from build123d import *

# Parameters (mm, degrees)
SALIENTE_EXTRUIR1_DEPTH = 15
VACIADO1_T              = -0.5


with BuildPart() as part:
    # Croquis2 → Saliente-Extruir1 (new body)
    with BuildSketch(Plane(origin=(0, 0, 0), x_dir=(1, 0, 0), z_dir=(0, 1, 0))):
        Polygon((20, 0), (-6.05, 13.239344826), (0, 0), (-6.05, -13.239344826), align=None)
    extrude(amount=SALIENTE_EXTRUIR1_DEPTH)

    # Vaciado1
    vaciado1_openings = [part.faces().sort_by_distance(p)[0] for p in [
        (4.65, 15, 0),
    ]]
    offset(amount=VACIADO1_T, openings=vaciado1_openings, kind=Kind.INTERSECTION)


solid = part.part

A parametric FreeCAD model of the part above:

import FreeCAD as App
import Part
import Sketcher

V = App.Vector


def faces_at(feature, points):
    """Names of the faces that lie closest to the given points."""
    faces = feature.Shape.Faces
    near = lambda p: min(range(len(faces)), key=lambda i: faces[i].distToShape(Part.Vertex(*p))[0])
    return sorted({f"Face{near(p) + 1}" for p in points})

doc = App.newDocument("Part")
params = doc.addObject("Spreadsheet::Sheet", "Params")
for row, (alias, value) in enumerate([
    ("pad1_length", "15 mm"),
    ("thickness_wall", "0.5 mm"),
], start=1):
    params.set(f"A{row}", alias)
    params.set(f"B{row}", "=" + value)
    params.setAlias(f"B{row}", alias)

body = doc.addObject("PartDesign::Body", "Body")

sketch1 = body.newObject("Sketcher::SketchObject", "Sketch")
sketch1.AttachmentSupport = (doc.getObject("XZ_Plane"), [""])
sketch1.MapMode = "FlatFace"
sketch1.addGeometry([
    Part.LineSegment(V(20, 0, 0), V(-6.05, -13.239345, 0)),
    Part.LineSegment(V(-6.05, -13.239345, 0), V(0, 0, 0)),
    Part.LineSegment(V(0, 0, 0), V(-6.05, 13.239345, 0)),
    Part.LineSegment(V(-6.05, 13.239345, 0), V(20, 0, 0)),
], False)
sketch1.addConstraint([
    Sketcher.Constraint("Coincident", 0, 2, 1, 1),
    Sketcher.Constraint("Coincident", 1, 2, 2, 1),
    Sketcher.Constraint("Coincident", 2, 2, 3, 1),
    Sketcher.Constraint("Coincident", 3, 2, 0, 1),
    Sketcher.Constraint("Coincident", 1, 2, -1, 1),
    Sketcher.Constraint("Symmetric", 0, 2, 2, 2, -1),
    Sketcher.Constraint("PointOnObject", 3, 2, -1),
    Sketcher.Constraint("DistanceX", -1, 1, 3, 2, 20.0),
    Sketcher.Constraint("DistanceX", 0, 2, -1, 1, 6.05),
    Sketcher.Constraint("DistanceY", 0, 2, 2, 2, 26.47869),
])
pad1 = body.newObject("PartDesign::Pad", "Pad")
pad1.Profile = sketch1
pad1.setExpression("Length", "Params.pad1_length")
pad1.Reversed = True
doc.recompute()

thickness = body.newObject("PartDesign::Thickness", "Thickness")
thickness.Base = (pad1, faces_at(pad1, [(6.975, 15, 0)]))
thickness.setExpression("Value", "Params.thickness_wall")
thickness.Reversed = True
thickness.Join = "Intersection"

doc.recompute()
